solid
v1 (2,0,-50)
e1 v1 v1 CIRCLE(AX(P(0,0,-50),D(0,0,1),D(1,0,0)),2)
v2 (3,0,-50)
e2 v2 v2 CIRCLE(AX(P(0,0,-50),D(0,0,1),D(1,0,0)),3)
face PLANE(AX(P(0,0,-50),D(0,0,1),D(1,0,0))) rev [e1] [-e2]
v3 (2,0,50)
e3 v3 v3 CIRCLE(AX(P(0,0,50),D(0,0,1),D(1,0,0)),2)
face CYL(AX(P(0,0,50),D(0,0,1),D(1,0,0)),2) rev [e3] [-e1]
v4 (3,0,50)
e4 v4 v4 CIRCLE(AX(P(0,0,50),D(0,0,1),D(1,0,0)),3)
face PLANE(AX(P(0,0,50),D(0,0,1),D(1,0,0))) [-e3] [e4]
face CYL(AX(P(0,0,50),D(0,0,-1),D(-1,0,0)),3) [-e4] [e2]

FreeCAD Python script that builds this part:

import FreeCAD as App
import Part
import Sketcher

V = App.Vector
Q = App.Units.Quantity

doc = App.newDocument("Part")
body = doc.addObject("PartDesign::Body", "Body")

sketch1 = doc.addObject("Sketcher::SketchObject", "Sketch")
body.addObject(sketch1)
sketch1.AttachmentSupport = (doc.XY_Plane, [""])
sketch1.MapMode = "FlatFace"
sketch1.addGeometry(Part.Circle(V(0, 0, 0), V(0, 0, 1), 3), False)
sketch1.addConstraint([
    Sketcher.Constraint("Coincident", 0, 3, -1, 1),
    Sketcher.Constraint("Diameter", 0, Q("6 mm")),
])
pad1 = doc.addObject("PartDesign::Pad", "Pad")
body.addObject(pad1)
pad1.Profile = sketch1
pad1.Length = 100
pad1.Midplane = True

sketch2 = doc.addObject("Sketcher::SketchObject", "Sketch001")
body.addObject(sketch2)
sketch2.AttachmentSupport = (doc.XY_Plane, [""])
sketch2.MapMode = "FlatFace"
sketch2.AttachmentOffset = App.Placement(V(0, 0, 50), App.Rotation())
sketch2.addGeometry(Part.Circle(V(0, 0, 0), V(0, 0, 1), 2), False)
sketch2.addConstraint([
    Sketcher.Constraint("Coincident", 0, 3, -1, 1),
    Sketcher.Constraint("Diameter", 0, Q("4 mm")),
])
doc.recompute()
hole = doc.addObject("PartDesign::Hole", "Hole")
body.addObject(hole)
hole.Profile = sketch2
hole.ThreadType = "None"
hole.Diameter = 4
hole.DepthType = "Dimension"
hole.Depth = 100
hole.DrillPoint = "Flat"

doc.recompute()
